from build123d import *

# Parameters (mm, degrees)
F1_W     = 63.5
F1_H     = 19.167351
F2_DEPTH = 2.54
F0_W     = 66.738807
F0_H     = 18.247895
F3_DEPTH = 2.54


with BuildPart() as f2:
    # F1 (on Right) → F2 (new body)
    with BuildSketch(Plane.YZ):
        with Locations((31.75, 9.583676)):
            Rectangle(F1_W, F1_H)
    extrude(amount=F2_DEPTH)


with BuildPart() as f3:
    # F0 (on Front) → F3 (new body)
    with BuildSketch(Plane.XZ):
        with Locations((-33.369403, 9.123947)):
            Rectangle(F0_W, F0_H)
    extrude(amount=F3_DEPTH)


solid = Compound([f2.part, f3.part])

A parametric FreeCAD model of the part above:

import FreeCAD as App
import Part
import Sketcher
Q = App.Units.Quantity

doc = App.newDocument("Part")
params = doc.addObject("Spreadsheet::Sheet", "Params")
for row, (alias, value) in enumerate([
    ("sketch1_width", "2.5 in"),
    ("pad1_length", "0.1 in"),
    ("pad2_length", "0.1 in"),
], start=1):
    params.set(f"A{row}", alias)
    params.set(f"B{row}", "=" + value)
    params.setAlias(f"B{row}", alias)

body = doc.addObject("PartDesign::Body", "Body")

# Sketch on YZ plane
sketch1 = doc.addObject("Sketcher::SketchObject", "Sketch")
body.addObject(sketch1)
sketch1.AttachmentSupport = (doc.YZ_Plane, [""])
sketch1.MapMode = "FlatFace"
sketch1.addGeometry([
    Part.LineSegment(App.Vector(0, 19.167351, 0), App.Vector(0, 0, 0)),
    Part.LineSegment(App.Vector(0, 0, 0), App.Vector(63.5, 0, 0)),
    Part.LineSegment(App.Vector(63.5, 0, 0), App.Vector(63.5, 19.167351, 0)),
    Part.LineSegment(App.Vector(63.5, 19.167351, 0), App.Vector(0, 19.167351, 0)),
], False)
sketch1.addConstraint([
    Sketcher.Constraint("Coincident", 0, 2, 1, 1),
    Sketcher.Constraint("Coincident", 1, 2, 2, 1),
    Sketcher.Constraint("Coincident", 2, 2, 3, 1),
    Sketcher.Constraint("Coincident", 3, 2, 0, 1),
    Sketcher.Constraint("Vertical", 0),
    Sketcher.Constraint("Horizontal", 1),
    Sketcher.Constraint("Vertical", 2),
    Sketcher.Constraint("Horizontal", 3),
    Sketcher.Constraint("Coincident", 0, 2, -1, 1),
    Sketcher.Constraint("DistanceX", 1, 1, 1, 2, Q("2.5 in")),
    Sketcher.Constraint("DistanceY", 0, 2, 0, 1, Q("19.167351 mm")),
])
sketch1.setExpression("Constraints[9]", "Params.sketch1_width")
pad1 = doc.addObject("PartDesign::Pad", "Pad")
body.addObject(pad1)
pad1.Profile = sketch1
pad1.setExpression("Length", "Params.pad1_length")
body2 = doc.addObject("PartDesign::Body", "Body001")

# Sketch on XZ plane
sketch2 = doc.addObject("Sketcher::SketchObject", "Sketch001")
body2.addObject(sketch2)
sketch2.AttachmentSupport = (doc.getObject("XZ_Plane001"), [""])
sketch2.MapMode = "FlatFace"
sketch2.addGeometry([
    Part.LineSegment(App.Vector(-66.738806, 18.247895, 0), App.Vector(-66.738806, 0, 0)),
    Part.LineSegment(App.Vector(-66.738806, 0, 0), App.Vector(0, 0, 0)),
    Part.LineSegment(App.Vector(0, 0, 0), App.Vector(0, 18.247895, 0)),
    Part.LineSegment(App.Vector(0, 18.247895, 0), App.Vector(-66.738806, 18.247895, 0)),
], False)
sketch2.addConstraint([
    Sketcher.Constraint("Coincident", 0, 2, 1, 1),
    Sketcher.Constraint("Coincident", 1, 2, 2, 1),
    Sketcher.Constraint("Coincident", 2, 2, 3, 1),
    Sketcher.Constraint("Coincident", 3, 2, 0, 1),
    Sketcher.Constraint("Vertical", 0),
    Sketcher.Constraint("Horizontal", 1),
    Sketcher.Constraint("Vertical", 2),
    Sketcher.Constraint("Horizontal", 3),
    Sketcher.Constraint("Coincident", 1, 2, -1, 1),
    Sketcher.Constraint("DistanceX", 1, 1, 1, 2, Q("66.738807 mm")),
    Sketcher.Constraint("DistanceY", 0, 2, 0, 1, Q("18.247895 mm")),
])
pad2 = doc.addObject("PartDesign::Pad", "Pad001")
body2.addObject(pad2)
pad2.Profile = sketch2
pad2.setExpression("Length", "Params.pad2_length")

doc.recompute()
